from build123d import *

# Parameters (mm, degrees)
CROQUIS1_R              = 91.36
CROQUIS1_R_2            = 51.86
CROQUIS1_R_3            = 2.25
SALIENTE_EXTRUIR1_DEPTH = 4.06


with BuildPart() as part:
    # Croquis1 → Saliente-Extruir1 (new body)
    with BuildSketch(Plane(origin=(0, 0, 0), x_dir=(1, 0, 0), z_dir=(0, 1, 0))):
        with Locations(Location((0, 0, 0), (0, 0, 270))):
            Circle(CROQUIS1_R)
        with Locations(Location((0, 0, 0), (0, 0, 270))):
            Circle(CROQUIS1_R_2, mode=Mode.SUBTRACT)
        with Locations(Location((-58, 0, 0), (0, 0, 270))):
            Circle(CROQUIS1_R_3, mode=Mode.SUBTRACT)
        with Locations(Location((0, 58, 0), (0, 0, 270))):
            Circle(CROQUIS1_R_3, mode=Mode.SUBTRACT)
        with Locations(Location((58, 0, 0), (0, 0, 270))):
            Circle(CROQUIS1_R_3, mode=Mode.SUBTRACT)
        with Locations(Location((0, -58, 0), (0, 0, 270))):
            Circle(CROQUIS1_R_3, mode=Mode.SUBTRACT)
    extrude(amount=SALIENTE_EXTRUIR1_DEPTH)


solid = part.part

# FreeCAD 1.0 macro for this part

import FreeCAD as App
import Part
import Sketcher
from FreeCAD import Vector
Q = App.Units.Quantity

doc = App.newDocument("Part")
body = doc.addObject("PartDesign::Body", "Body")

sketch1 = body.newObject("Sketcher::SketchObject", "Sketch")
sketch1.AttachmentSupport = (doc.getObject("XZ_Plane"), [""])
sketch1.MapMode = "FlatFace"
sketch1.addGeometry([
    Part.Circle(Vector(0, 0, 0), Vector(0, 0, 1), 91.4),
    Part.Circle(Vector(0, -58, 0), Vector(0, 0, 1), 2.2),
    Part.Circle(Vector(-58, 0, 0), Vector(0, 0, 1), 2.2),
    Part.Circle(Vector(58, 0, 0), Vector(0, 0, 1), 2.2),
    Part.Circle(Vector(0, 0, 0), Vector(0, 0, 1), 51.9),
    Part.Circle(Vector(0, 58, 0), Vector(0, 0, 1), 2.2),
], False)
sketch1.addConstraint([
    Sketcher.Constraint("Coincident", 0, 3, -1, 1),
    Sketcher.Constraint("Coincident", 4, 3, -1, 1),
    Sketcher.Constraint("Equal", 1, 2),
    Sketcher.Constraint("Equal", 2, 3),
    Sketcher.Constraint("Equal", 3, 5),
    Sketcher.Constraint("Symmetric", 2, 3, 3, 3, -1, 1),
    Sketcher.Constraint("Symmetric", 1, 3, 5, 3, -1, 1),
    Sketcher.Constraint("PointOnObject", 1, 3, -2),
    Sketcher.Constraint("PointOnObject", 2, 3, -1),
    Sketcher.Constraint("Diameter", 1, Q("4.5 mm")),
    Sketcher.Constraint("Diameter", 0, Q("182.72 mm")),
    Sketcher.Constraint("Diameter", 4, Q("103.72 mm")),
    Sketcher.Constraint("DistanceY", 1, 3, -1, 1, Q("58 mm")),
    Sketcher.Constraint("DistanceX", 2, 3, -1, 1, Q("58 mm")),
])
pad1 = body.newObject("PartDesign::Pad", "Pad")
pad1.Profile = sketch1
pad1.Length = 4.06
pad1.Reversed = True

doc.recompute()
